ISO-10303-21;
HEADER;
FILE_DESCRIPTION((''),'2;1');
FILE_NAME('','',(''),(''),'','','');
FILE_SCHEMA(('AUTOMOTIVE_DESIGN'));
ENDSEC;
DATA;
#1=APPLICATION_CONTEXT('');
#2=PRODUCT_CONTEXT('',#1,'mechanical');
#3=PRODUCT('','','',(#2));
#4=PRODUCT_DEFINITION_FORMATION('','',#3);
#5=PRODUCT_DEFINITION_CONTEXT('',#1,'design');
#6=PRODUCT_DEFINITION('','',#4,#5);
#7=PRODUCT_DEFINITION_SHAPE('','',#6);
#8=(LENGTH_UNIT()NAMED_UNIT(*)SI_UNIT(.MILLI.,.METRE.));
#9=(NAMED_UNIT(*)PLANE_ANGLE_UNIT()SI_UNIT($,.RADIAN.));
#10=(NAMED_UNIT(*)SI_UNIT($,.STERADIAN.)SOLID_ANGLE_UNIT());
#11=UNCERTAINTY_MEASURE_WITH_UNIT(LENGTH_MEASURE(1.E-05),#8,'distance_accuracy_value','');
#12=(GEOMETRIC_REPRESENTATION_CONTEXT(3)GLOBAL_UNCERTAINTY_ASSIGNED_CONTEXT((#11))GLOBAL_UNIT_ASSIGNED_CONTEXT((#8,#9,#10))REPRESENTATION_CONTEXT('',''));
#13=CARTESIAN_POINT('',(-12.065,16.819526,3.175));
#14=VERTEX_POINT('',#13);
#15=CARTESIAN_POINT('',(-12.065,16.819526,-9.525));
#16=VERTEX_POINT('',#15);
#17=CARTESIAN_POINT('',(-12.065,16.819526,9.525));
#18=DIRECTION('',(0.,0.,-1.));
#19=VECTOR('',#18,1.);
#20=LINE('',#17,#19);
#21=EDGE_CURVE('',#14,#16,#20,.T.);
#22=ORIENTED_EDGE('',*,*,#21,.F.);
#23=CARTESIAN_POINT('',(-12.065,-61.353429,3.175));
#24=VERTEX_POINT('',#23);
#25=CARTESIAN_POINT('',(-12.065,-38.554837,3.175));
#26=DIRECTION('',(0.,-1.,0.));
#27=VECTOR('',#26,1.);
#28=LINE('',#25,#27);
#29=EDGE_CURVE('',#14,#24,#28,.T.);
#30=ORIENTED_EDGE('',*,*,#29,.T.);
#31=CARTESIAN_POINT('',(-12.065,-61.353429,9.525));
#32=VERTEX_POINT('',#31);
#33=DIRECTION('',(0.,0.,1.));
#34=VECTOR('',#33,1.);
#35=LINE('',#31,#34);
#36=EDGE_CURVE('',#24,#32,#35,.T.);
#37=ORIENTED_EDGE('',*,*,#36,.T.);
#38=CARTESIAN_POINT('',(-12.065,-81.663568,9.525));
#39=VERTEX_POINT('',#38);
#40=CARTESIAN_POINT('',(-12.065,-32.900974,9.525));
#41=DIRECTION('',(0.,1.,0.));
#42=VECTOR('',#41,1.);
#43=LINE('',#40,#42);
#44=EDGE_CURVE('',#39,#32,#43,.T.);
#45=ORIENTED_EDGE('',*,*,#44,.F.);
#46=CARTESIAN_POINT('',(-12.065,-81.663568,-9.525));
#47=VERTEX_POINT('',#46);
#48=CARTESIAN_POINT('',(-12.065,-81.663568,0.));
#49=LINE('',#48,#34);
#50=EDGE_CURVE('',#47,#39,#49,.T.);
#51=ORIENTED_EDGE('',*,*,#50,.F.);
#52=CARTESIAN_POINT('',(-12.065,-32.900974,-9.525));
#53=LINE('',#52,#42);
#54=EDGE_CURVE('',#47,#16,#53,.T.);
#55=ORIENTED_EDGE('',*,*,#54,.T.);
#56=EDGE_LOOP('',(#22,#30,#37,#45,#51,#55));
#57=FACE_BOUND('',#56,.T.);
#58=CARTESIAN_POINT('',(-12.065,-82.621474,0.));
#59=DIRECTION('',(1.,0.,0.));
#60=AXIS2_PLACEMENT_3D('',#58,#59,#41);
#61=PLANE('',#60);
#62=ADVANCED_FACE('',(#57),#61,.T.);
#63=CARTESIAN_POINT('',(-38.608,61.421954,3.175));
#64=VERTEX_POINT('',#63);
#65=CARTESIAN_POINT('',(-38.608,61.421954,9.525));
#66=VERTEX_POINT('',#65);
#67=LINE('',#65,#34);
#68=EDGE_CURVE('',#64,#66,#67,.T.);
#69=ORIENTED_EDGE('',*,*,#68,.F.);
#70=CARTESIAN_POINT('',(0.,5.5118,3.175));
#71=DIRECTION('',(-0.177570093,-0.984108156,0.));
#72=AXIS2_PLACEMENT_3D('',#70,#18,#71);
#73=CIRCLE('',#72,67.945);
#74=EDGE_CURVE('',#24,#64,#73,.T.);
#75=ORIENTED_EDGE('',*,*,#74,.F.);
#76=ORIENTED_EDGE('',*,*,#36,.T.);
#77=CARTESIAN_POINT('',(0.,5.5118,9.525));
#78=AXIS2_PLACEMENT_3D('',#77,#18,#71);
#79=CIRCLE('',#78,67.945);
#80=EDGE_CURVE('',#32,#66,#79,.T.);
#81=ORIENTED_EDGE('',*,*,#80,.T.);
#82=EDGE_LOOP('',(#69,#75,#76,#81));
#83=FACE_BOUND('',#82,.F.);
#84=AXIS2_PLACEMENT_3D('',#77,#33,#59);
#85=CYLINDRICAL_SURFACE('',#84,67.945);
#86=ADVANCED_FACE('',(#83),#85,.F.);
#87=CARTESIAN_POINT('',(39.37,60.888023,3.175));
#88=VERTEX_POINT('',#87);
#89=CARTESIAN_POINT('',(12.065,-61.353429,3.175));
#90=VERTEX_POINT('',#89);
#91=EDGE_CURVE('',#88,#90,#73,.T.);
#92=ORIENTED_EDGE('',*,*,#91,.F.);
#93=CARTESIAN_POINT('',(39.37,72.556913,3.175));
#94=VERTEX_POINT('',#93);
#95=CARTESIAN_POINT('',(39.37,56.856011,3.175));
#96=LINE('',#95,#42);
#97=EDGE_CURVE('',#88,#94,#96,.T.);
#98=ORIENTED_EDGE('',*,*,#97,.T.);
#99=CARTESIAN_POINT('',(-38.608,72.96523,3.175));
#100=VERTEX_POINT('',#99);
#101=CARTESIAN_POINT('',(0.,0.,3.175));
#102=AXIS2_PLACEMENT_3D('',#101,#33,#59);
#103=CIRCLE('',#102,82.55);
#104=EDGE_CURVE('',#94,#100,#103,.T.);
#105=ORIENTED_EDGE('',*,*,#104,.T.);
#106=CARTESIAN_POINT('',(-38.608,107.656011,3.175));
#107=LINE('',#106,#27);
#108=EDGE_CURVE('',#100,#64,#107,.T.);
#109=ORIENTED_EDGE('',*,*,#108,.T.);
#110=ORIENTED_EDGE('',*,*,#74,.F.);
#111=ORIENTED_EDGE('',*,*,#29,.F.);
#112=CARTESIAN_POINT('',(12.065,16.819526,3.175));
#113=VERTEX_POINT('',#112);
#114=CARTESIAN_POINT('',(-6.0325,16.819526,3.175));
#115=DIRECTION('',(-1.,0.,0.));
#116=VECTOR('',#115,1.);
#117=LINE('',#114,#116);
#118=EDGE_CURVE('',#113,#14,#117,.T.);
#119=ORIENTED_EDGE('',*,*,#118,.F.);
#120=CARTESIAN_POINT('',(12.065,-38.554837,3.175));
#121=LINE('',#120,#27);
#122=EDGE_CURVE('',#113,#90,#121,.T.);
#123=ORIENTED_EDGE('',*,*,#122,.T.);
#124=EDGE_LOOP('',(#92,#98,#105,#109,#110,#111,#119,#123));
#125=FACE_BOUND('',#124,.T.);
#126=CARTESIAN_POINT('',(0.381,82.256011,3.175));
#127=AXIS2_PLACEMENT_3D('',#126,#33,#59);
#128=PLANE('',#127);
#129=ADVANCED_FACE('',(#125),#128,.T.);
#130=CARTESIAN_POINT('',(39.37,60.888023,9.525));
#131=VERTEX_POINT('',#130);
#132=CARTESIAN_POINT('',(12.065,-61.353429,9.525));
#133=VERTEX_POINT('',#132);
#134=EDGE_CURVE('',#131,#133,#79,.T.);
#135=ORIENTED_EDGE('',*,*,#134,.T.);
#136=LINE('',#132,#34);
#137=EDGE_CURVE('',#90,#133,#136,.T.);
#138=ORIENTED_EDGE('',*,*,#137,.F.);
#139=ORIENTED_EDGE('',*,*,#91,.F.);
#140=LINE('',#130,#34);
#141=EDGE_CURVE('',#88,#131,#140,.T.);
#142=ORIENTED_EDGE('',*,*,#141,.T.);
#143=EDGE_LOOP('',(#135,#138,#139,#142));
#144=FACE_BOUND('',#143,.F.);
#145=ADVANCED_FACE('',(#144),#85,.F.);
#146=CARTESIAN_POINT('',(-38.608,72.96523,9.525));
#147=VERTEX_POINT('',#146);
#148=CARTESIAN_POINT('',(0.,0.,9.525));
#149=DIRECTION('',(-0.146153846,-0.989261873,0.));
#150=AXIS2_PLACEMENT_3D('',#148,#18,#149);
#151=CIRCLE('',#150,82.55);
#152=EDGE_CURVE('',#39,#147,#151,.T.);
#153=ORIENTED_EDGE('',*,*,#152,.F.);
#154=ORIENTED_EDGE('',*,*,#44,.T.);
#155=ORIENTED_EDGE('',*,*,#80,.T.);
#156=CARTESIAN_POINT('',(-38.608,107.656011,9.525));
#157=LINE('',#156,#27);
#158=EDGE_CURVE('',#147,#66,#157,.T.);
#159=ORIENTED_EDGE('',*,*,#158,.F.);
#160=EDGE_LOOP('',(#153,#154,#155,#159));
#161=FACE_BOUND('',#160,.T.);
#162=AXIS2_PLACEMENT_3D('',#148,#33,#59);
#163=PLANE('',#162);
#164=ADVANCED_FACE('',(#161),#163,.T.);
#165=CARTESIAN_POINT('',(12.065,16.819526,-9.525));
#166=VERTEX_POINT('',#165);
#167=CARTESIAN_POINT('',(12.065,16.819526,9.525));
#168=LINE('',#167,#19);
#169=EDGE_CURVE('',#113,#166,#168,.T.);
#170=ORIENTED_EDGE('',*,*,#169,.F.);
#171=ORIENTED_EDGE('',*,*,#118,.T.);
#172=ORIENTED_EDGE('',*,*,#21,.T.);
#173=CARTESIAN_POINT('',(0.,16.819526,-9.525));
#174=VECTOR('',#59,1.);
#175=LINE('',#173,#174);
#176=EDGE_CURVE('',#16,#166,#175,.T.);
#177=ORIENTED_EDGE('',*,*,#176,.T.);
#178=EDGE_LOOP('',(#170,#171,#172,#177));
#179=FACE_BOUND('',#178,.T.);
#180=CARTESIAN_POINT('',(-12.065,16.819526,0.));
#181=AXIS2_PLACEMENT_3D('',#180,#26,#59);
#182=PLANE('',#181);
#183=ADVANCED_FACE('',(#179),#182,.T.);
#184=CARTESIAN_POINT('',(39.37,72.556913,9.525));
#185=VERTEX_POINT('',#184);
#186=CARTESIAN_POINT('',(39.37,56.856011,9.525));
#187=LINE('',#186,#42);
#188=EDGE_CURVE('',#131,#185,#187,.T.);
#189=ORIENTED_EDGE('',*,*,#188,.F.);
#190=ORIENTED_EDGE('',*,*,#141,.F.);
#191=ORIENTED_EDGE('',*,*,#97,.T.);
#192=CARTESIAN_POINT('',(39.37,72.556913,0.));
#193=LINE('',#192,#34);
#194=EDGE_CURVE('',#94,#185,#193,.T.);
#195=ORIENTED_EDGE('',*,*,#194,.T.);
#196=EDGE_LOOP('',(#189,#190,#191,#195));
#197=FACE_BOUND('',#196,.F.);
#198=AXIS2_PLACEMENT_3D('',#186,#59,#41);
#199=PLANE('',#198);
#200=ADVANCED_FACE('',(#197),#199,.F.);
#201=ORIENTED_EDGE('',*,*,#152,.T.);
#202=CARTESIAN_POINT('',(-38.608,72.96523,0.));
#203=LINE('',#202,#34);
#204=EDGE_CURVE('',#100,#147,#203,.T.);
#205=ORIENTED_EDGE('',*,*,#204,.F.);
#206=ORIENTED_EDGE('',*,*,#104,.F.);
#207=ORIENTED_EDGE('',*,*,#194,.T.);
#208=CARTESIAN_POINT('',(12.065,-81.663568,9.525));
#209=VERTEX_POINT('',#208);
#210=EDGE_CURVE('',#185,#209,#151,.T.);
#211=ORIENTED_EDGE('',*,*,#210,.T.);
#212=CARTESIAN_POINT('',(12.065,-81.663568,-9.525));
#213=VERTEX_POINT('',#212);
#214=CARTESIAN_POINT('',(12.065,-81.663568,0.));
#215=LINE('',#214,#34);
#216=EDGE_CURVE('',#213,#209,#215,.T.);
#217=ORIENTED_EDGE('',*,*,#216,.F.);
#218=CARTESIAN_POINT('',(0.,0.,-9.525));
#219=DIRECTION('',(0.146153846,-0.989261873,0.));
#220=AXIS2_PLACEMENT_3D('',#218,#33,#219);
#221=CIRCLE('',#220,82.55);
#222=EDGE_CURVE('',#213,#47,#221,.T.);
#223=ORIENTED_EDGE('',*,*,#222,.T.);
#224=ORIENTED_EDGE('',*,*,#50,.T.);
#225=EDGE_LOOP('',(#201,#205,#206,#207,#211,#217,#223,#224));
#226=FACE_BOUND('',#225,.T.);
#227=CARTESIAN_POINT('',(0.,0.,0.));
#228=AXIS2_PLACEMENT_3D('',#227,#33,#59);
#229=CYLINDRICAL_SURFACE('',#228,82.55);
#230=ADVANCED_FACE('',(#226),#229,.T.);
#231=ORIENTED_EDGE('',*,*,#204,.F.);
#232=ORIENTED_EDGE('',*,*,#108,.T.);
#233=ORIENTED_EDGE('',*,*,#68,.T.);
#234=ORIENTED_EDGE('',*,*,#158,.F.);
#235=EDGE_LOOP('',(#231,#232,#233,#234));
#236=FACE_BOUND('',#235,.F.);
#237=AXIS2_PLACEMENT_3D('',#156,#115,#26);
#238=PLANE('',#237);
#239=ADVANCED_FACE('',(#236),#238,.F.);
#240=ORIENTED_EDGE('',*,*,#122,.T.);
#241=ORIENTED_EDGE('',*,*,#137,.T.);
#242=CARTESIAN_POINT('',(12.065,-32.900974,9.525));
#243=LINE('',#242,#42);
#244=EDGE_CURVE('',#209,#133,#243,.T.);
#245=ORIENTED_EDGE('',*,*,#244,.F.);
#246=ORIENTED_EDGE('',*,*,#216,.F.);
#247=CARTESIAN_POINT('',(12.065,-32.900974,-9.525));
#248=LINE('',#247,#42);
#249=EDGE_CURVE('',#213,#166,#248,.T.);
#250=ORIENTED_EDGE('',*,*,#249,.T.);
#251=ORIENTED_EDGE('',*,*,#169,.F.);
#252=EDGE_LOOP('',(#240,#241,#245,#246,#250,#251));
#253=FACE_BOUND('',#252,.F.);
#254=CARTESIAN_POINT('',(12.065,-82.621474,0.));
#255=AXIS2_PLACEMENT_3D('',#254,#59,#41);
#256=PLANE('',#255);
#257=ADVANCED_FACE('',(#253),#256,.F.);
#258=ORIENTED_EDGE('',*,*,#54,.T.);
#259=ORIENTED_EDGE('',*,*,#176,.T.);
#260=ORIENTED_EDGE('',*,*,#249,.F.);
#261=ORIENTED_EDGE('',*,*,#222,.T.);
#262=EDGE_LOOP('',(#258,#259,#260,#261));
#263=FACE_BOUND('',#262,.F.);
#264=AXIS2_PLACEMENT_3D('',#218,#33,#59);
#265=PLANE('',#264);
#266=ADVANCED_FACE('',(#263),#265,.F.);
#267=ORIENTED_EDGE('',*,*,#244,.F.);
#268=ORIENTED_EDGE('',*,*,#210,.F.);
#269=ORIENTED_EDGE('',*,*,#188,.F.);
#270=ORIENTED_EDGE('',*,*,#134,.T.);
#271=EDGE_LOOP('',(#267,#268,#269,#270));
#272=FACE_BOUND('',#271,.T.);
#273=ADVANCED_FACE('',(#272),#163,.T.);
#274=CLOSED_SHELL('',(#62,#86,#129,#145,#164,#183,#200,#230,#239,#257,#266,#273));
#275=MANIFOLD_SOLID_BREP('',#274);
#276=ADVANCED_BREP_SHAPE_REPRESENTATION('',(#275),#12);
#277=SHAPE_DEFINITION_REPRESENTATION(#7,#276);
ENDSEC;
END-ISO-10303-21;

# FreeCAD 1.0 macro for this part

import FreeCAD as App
import Part
import Sketcher
from FreeCAD import Vector
Q = App.Units.Quantity


def add_polygon(sketch, points):
    """Adds a closed chain of lines whose ends are joined by coincident constraints."""
    first, n = sketch.GeometryCount, len(points)
    for a, b in zip(points, points[1:] + points[:1]):
        sketch.addGeometry(Part.LineSegment(App.Vector(*a, 0), App.Vector(*b, 0)), False)
    for i in range(n):
        sketch.addConstraint(Sketcher.Constraint("Coincident", first + i, 2, first + (i + 1) % n, 1))

doc = App.newDocument("Part")
body = doc.addObject("PartDesign::Body", "Body")

sketch1 = body.newObject("Sketcher::SketchObject", "Sketch")
sketch1.AttachmentSupport = (doc.getObject("XY_Plane"), [""])
sketch1.MapMode = "FlatFace"
sketch1.addGeometry(Part.Circle(Vector(0, 0, 0), Vector(0, 0, 1), 82.55), False)
sketch1.addConstraint([
    Sketcher.Constraint("Coincident", 0, 3, -1, 1),
    Sketcher.Constraint("Diameter", 0, Q("6.5 in")),
])
pad1 = body.newObject("PartDesign::Pad", "Pad")
pad1.Profile = sketch1
pad1.Length = Q("0.75 in")
pad1.Midplane = True

sketch2 = body.newObject("Sketcher::SketchObject", "Sketch001")
sketch2.AttachmentSupport = (doc.getObject("XY_Plane"), [""])
sketch2.MapMode = "FlatFace"
add_polygon(sketch2, [(-12.065, 16.819526), (-12.065, -82.621474), (12.065, -82.621474), (12.065, 16.819526)])
sketch2.addConstraint([
    Sketcher.Constraint("Vertical", 0),
    Sketcher.Constraint("Horizontal", 1),
    Sketcher.Constraint("Vertical", 2),
    Sketcher.Constraint("Horizontal", 3),
    Sketcher.Constraint("DistanceX", 1, 1, 1, 2, Q("0.95 in")),
    Sketcher.Constraint("DistanceY", 0, 2, 0, 1, Q("3.915 in")),
    Sketcher.Constraint("DistanceX", 0, 2, -1, 1, Q("0.475 in")),
    Sketcher.Constraint("DistanceY", 0, 2, -1, 1, Q("82.621474 mm")),
])
pocket1 = body.newObject("PartDesign::Pocket", "Pocket")
pocket1.Profile = sketch2
pocket1.Length = Q("0.75 in")
pocket1.Midplane = True

sketch3 = body.newObject("Sketcher::SketchObject", "Sketch002")
sketch3.AttachmentSupport = (doc.getObject("XY_Plane"), [""])
sketch3.MapMode = "FlatFace"
sketch3.AttachmentOffset = App.Placement(Vector(0, 0, 0.375 * 25.4), App.Rotation())
sketch3.addGeometry(Part.Circle(Vector(0, 5.5118, 0), Vector(0, 0, 1), 67.945), False)
sketch3.addConstraint([
    Sketcher.Constraint("PointOnObject", 0, 3, -2),
    Sketcher.Constraint("Diameter", 0, Q("5.35 in")),
    Sketcher.Constraint("DistanceY", -1, 1, 0, 3, Q("0.217 in")),
])
pocket2 = body.newObject("PartDesign::Pocket", "Pocket001")
pocket2.Profile = sketch3
pocket2.Length = Q("0.25 in")

sketch4 = body.newObject("Sketcher::SketchObject", "Sketch003")
sketch4.AttachmentSupport = (doc.getObject("XY_Plane"), [""])
sketch4.MapMode = "FlatFace"
sketch4.AttachmentOffset = App.Placement(Vector(0, 0, 0.375 * 25.4), App.Rotation())
add_polygon(sketch4, [(39.37, 107.656011), (-38.608, 107.656011), (-38.608, 56.856011), (39.37, 56.856011)])
sketch4.addConstraint([
    Sketcher.Constraint("Horizontal", 0),
    Sketcher.Constraint("Vertical", 1),
    Sketcher.Constraint("Horizontal", 2),
    Sketcher.Constraint("Vertical", 3),
    Sketcher.Constraint("DistanceY", 1, 2, 1, 1, Q("2 in")),
    Sketcher.Constraint("DistanceX", 0, 2, 0, 1, Q("3.07 in")),
    Sketcher.Constraint("DistanceX", 0, 2, -1, 1, Q("1.52 in")),
    Sketcher.Constraint("DistanceY", -1, 1, 0, 2, Q("107.656011 mm")),
])
pocket3 = body.newObject("PartDesign::Pocket", "Pocket002")
pocket3.Profile = sketch4
pocket3.Length = Q("0.25 in")

doc.recompute()
